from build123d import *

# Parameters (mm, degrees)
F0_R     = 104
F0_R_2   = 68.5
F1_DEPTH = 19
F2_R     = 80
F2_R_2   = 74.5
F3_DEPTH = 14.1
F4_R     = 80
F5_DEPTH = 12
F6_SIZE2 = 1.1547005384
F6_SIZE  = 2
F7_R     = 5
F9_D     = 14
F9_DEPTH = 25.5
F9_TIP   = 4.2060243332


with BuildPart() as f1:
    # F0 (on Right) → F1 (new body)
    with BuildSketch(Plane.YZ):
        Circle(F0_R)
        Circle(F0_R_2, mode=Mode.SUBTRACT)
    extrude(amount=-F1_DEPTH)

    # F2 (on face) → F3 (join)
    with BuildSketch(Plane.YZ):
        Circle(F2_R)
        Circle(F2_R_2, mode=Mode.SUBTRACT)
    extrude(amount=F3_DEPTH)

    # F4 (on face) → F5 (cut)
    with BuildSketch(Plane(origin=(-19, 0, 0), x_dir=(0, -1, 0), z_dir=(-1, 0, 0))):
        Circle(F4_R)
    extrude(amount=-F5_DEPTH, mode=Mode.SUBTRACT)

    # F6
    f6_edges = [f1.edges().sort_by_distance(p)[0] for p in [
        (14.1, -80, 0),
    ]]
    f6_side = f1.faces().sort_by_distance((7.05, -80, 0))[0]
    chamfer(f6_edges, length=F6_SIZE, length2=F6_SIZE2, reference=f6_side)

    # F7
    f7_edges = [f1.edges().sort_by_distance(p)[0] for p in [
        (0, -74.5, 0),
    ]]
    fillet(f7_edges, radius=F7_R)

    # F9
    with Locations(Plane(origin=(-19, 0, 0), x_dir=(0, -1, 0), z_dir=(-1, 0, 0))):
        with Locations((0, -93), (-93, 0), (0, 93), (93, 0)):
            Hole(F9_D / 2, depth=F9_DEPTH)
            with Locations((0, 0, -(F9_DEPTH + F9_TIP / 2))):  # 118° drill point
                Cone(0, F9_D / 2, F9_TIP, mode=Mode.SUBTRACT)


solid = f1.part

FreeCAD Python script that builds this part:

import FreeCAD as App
import Part
import Sketcher
Q = App.Units.Quantity


def edges_at(feature, points):
    """Names of the edges that pass closest to the given points."""
    edges = feature.Shape.Edges
    near = lambda p: min(range(len(edges)), key=lambda i: edges[i].distToShape(Part.Vertex(*p))[0])
    return sorted({f"Edge{near(p) + 1}" for p in points})

doc = App.newDocument("Part")
body = doc.addObject("PartDesign::Body", "Body")

# Sketch on YZ plane
sketch1 = body.newObject("Sketcher::SketchObject", "Sketch")
sketch1.AttachmentSupport = (doc.getObject("YZ_Plane"), [""])
sketch1.MapMode = "FlatFace"
sketch1.addGeometry([
    Part.Circle(App.Vector(0, 0, 0), App.Vector(0, 0, 1), 104),
    Part.Circle(App.Vector(0, 0, 0), App.Vector(0, 0, 1), 68),
], False)
sketch1.addConstraint([
    Sketcher.Constraint("Coincident", 0, 3, -1, 1),
    Sketcher.Constraint("Coincident", 1, 3, -1, 1),
    Sketcher.Constraint("Diameter", 0, Q("208 mm")),
    Sketcher.Constraint("Diameter", 1, Q("137 mm")),
])
pad1 = body.newObject("PartDesign::Pad", "Pad")
pad1.Profile = sketch1
pad1.Length = 19
pad1.Reversed = True

# Sketch on YZ plane
sketch2 = body.newObject("Sketcher::SketchObject", "Sketch001")
sketch2.AttachmentSupport = (doc.getObject("YZ_Plane"), [""])
sketch2.MapMode = "FlatFace"
sketch2.addGeometry([
    Part.Circle(App.Vector(0, 0, 0), App.Vector(0, 0, 1), 80),
    Part.Circle(App.Vector(0, 0, 0), App.Vector(0, 0, 1), 74),
], False)
sketch2.addConstraint([
    Sketcher.Constraint("Coincident", 0, 3, -1, 1),
    Sketcher.Constraint("Coincident", 1, 3, -1, 1),
    Sketcher.Constraint("Diameter", 0, Q("160 mm")),
    Sketcher.Constraint("Diameter", 1, Q("149 mm")),
])
pad2 = body.newObject("PartDesign::Pad", "Pad001")
pad2.Profile = sketch2
pad2.Length = 14.1

# Sketch on YZ plane
sketch3 = body.newObject("Sketcher::SketchObject", "Sketch002")
sketch3.AttachmentSupport = (doc.getObject("YZ_Plane"), [""])
sketch3.MapMode = "FlatFace"
sketch3.AttachmentOffset = App.Placement(App.Vector(0, 0, -19), App.Rotation())
sketch3.addGeometry(Part.Circle(App.Vector(0, 0, 0), App.Vector(0, 0, 1), 80), False)
sketch3.addConstraint([
    Sketcher.Constraint("Coincident", 0, 3, -1, 1),
    Sketcher.Constraint("Diameter", 0, Q("160 mm")),
])
pocket1 = body.newObject("PartDesign::Pocket", "Pocket")
pocket1.Profile = sketch3
pocket1.Length = 12
pocket1.Reversed = True
doc.recompute()

chamfer = body.newObject("PartDesign::Chamfer", "Chamfer")
chamfer.Base = (pocket1, edges_at(pocket1, [(14.1, -80, 0)]))
chamfer.ChamferType = "Two distances"
chamfer.Size = 2
chamfer.Size2 = 1.154701
doc.recompute()

fillet = body.newObject("PartDesign::Fillet", "Fillet")
fillet.Base = (chamfer, edges_at(chamfer, [(0, -74.5, 0)]))
fillet.Radius = 5

# Sketch on YZ plane
sketch4 = body.newObject("Sketcher::SketchObject", "Sketch003")
sketch4.AttachmentSupport = (doc.getObject("YZ_Plane"), [""])
sketch4.MapMode = "FlatFace"
sketch4.AttachmentOffset = App.Placement(App.Vector(0, 0, -19), App.Rotation())
sketch4.addGeometry([
    Part.Circle(App.Vector(0, -93, 0), App.Vector(0, 0, 1), 7),
    Part.Circle(App.Vector(93, 0, 0), App.Vector(0, 0, 1), 7),
    Part.Circle(App.Vector(0, 93, 0), App.Vector(0, 0, 1), 7),
    Part.Circle(App.Vector(-93, 0, 0), App.Vector(0, 0, 1), 7),
], False)
sketch4.addConstraint([
    Sketcher.Constraint("Equal", 0, 1),
    Sketcher.Constraint("Equal", 1, 2),
    Sketcher.Constraint("Equal", 2, 3),
    Sketcher.Constraint("Symmetric", 0, 3, 2, 3, -1, 1),
    Sketcher.Constraint("Symmetric", 1, 3, 3, 3, -1, 1),
    Sketcher.Constraint("PointOnObject", 0, 3, -2),
    Sketcher.Constraint("PointOnObject", 1, 3, -1),
    Sketcher.Constraint("Diameter", 0, Q("14 mm")),
    Sketcher.Constraint("DistanceY", 0, 3, -1, 1, Q("93 mm")),
    Sketcher.Constraint("DistanceX", -1, 1, 1, 3, Q("93 mm")),
])
doc.recompute()
hole = body.newObject("PartDesign::Hole", "Hole")
hole.Profile = sketch4
hole.ThreadType = "None"
hole.Diameter = 14
hole.DepthType = "Dimension"
hole.Depth = 25.5
hole.DrillPoint = "Angled"
hole.DrillPointAngle = 118
hole.Reversed = True

doc.recompute()
